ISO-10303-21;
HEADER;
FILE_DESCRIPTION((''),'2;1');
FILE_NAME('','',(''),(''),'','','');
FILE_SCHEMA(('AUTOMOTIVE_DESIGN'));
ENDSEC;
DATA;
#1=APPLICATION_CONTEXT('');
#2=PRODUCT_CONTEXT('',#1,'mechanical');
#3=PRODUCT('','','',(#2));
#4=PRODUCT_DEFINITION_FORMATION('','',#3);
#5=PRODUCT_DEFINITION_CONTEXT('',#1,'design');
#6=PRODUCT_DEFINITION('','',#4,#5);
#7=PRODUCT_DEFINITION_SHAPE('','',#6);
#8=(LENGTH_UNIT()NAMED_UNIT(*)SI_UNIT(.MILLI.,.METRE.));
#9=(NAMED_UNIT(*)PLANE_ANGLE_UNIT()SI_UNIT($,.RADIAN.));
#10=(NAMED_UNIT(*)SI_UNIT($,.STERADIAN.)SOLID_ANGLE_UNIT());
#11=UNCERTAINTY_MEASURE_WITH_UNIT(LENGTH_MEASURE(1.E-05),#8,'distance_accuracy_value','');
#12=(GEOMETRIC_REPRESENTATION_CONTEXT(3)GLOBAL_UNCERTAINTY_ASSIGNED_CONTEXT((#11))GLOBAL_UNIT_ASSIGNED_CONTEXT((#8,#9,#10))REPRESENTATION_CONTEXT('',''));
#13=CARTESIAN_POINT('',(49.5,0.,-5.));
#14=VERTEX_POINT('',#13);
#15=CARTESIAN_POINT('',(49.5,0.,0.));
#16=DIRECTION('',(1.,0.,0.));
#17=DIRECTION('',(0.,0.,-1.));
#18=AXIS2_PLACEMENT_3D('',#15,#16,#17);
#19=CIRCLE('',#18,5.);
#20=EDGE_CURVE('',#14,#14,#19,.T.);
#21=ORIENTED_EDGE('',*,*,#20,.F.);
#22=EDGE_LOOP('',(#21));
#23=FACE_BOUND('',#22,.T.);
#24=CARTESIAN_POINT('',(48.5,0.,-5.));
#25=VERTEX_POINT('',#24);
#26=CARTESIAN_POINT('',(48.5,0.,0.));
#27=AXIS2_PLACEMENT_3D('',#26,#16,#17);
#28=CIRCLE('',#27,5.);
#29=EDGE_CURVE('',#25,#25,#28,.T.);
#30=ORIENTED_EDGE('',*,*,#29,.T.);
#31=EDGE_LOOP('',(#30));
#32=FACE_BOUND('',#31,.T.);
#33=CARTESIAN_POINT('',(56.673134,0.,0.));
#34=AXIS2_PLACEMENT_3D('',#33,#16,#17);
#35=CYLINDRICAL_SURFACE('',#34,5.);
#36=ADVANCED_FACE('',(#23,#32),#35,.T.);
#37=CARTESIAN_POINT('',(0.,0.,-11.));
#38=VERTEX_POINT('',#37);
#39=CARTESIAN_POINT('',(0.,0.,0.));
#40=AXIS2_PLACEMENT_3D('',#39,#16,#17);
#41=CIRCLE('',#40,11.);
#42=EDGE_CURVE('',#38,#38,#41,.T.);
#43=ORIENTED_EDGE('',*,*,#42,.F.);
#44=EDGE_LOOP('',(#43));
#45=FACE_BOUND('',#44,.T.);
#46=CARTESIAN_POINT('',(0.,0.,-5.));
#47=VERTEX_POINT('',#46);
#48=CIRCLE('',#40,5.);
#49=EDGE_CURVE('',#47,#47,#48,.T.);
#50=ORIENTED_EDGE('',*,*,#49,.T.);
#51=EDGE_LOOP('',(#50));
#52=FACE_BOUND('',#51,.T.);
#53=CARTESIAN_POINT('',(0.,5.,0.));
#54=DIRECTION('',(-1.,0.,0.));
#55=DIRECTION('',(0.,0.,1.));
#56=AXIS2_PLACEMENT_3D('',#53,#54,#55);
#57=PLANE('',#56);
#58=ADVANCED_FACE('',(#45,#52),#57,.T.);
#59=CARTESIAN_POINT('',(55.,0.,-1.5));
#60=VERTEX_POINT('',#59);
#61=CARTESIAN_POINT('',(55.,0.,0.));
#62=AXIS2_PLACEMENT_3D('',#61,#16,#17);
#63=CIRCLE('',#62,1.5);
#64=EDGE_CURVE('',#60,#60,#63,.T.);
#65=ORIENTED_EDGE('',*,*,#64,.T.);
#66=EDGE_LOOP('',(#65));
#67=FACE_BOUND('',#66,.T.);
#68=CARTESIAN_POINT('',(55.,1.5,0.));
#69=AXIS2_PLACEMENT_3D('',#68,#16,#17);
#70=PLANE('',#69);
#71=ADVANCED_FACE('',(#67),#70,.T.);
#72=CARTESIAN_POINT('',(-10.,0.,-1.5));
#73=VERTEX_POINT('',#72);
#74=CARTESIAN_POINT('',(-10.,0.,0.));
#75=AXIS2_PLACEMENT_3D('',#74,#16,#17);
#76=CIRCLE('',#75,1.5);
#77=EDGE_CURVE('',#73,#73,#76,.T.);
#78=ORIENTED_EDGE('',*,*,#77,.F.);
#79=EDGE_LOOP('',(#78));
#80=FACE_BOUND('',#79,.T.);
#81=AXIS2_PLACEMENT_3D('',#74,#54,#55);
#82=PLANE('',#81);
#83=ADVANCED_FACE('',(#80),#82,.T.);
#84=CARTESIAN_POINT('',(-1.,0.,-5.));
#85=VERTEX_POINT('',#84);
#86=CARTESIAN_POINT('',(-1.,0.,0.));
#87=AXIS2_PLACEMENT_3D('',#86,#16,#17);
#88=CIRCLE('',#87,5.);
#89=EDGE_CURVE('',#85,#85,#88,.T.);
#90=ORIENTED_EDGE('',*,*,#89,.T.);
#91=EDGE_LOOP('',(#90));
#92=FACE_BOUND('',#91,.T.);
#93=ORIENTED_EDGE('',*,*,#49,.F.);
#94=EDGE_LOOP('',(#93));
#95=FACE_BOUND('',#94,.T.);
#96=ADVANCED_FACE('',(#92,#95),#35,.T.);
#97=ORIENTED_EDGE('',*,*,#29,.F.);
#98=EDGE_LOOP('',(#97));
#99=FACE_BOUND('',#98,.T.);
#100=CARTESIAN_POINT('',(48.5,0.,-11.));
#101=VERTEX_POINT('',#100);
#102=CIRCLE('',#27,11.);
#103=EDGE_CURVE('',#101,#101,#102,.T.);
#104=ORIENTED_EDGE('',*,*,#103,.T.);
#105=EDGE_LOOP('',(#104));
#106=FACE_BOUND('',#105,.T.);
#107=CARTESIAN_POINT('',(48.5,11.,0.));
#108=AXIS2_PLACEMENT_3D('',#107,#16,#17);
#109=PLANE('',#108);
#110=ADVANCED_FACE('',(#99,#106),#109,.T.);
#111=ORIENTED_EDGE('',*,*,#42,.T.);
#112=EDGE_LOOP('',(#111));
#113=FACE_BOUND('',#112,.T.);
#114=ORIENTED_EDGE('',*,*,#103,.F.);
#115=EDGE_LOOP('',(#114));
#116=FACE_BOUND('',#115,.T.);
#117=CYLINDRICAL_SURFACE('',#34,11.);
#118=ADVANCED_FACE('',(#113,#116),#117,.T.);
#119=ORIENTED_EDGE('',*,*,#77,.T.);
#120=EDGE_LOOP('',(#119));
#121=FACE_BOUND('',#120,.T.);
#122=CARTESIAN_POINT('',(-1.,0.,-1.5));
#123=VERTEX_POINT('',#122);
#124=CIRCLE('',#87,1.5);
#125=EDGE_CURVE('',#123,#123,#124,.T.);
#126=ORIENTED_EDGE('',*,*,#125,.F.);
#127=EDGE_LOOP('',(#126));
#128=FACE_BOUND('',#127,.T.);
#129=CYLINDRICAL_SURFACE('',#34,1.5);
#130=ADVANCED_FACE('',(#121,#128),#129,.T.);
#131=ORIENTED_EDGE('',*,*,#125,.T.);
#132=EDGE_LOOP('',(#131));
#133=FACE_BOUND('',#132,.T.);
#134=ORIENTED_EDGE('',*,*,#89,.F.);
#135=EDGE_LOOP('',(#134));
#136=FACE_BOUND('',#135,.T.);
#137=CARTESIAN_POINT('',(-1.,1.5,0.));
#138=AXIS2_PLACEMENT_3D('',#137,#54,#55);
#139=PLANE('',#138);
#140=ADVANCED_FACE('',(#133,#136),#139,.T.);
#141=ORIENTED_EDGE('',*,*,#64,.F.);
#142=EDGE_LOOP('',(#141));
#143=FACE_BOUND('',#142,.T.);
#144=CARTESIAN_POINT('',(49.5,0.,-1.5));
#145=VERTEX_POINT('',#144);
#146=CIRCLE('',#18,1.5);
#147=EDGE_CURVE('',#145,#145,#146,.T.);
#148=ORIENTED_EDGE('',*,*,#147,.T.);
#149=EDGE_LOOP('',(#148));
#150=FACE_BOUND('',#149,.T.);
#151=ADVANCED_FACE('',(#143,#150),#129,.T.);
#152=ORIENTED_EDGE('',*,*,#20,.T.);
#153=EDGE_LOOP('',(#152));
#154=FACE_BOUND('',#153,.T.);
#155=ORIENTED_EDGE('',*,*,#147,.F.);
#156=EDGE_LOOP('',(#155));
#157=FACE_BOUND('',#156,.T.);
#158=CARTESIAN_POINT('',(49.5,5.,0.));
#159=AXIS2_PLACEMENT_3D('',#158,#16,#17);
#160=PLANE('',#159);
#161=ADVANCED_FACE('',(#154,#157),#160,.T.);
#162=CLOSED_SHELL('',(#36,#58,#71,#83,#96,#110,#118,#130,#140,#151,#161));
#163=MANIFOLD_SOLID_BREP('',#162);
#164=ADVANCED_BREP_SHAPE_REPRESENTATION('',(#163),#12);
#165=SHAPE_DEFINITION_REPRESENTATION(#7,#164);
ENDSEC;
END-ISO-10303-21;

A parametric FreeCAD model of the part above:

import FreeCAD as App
import Part
import Sketcher
Q = App.Units.Quantity

doc = App.newDocument("Part")
body = doc.addObject("PartDesign::Body", "Body")

sketch1 = body.newObject("Sketcher::SketchObject", "Sketch")
sketch1.AttachmentSupport = (doc.getObject("XY_Plane"), [""])
sketch1.MapMode = "FlatFace"
sketch1.addGeometry([
    Part.LineSegment(App.Vector(-10, 1.5, 0), App.Vector(-10, 0, 0)),
    Part.LineSegment(App.Vector(-10, 0, 0), App.Vector(55, 0, 0)),
    Part.LineSegment(App.Vector(55, 0, 0), App.Vector(55, 1.5, 0)),
    Part.LineSegment(App.Vector(55, 1.5, 0), App.Vector(49.5, 1.5, 0)),
    Part.LineSegment(App.Vector(49.5, 1.5, 0), App.Vector(49.5, 5, 0)),
    Part.LineSegment(App.Vector(49.5, 5, 0), App.Vector(48.5, 5, 0)),
    Part.LineSegment(App.Vector(48.5, 5, 0), App.Vector(48.5, 11, 0)),
    Part.LineSegment(App.Vector(48.5, 11, 0), App.Vector(0, 11, 0)),
    Part.LineSegment(App.Vector(0, 11, 0), App.Vector(0, 5, 0)),
    Part.LineSegment(App.Vector(0, 5, 0), App.Vector(-1, 5, 0)),
    Part.LineSegment(App.Vector(-1, 5, 0), App.Vector(-1, 1.5, 0)),
    Part.LineSegment(App.Vector(-1, 1.5, 0), App.Vector(-10, 1.5, 0)),
], False)
sketch1.addConstraint([
    Sketcher.Constraint("Coincident", 0, 2, 1, 1),
    Sketcher.Constraint("Coincident", 1, 2, 2, 1),
    Sketcher.Constraint("Coincident", 2, 2, 3, 1),
    Sketcher.Constraint("Coincident", 3, 2, 4, 1),
    Sketcher.Constraint("Coincident", 4, 2, 5, 1),
    Sketcher.Constraint("Coincident", 5, 2, 6, 1),
    Sketcher.Constraint("Coincident", 6, 2, 7, 1),
    Sketcher.Constraint("Coincident", 7, 2, 8, 1),
    Sketcher.Constraint("Coincident", 8, 2, 9, 1),
    Sketcher.Constraint("Coincident", 9, 2, 10, 1),
    Sketcher.Constraint("Coincident", 10, 2, 11, 1),
    Sketcher.Constraint("Coincident", 11, 2, 0, 1),
    Sketcher.Constraint("Vertical", 0),
    Sketcher.Constraint("Horizontal", 1),
    Sketcher.Constraint("Vertical", 2),
    Sketcher.Constraint("Horizontal", 3),
    Sketcher.Constraint("Vertical", 4),
    Sketcher.Constraint("Horizontal", 5),
    Sketcher.Constraint("Vertical", 6),
    Sketcher.Constraint("Horizontal", 7),
    Sketcher.Constraint("Vertical", 8),
    Sketcher.Constraint("Horizontal", 9),
    Sketcher.Constraint("Vertical", 10),
    Sketcher.Constraint("Horizontal", 11),
    Sketcher.Constraint("PointOnObject", 0, 2, -1),
    Sketcher.Constraint("PointOnObject", 7, 2, -2),
    Sketcher.Constraint("Horizontal", 5, 2, 8, 2),
    Sketcher.Constraint("Horizontal", 3, 2, 10, 2),
    Sketcher.Constraint("Equal", 5, 9),
    Sketcher.Constraint("DistanceX", 1, 1, 1, 2, Q("65 mm")),
    Sketcher.Constraint("DistanceX", 5, 2, 5, 1, Q("1 mm")),
    Sketcher.Constraint("DistanceX", 11, 2, 11, 1, Q("9 mm")),
    Sketcher.Constraint("DistanceY", 6, 1, 6, 2, Q("6 mm")),
    Sketcher.Constraint("DistanceX", 3, 2, 3, 1, Q("5.5 mm")),
    Sketcher.Constraint("DistanceY", 0, 2, 0, 1, Q("1.5 mm")),
    Sketcher.Constraint("DistanceY", 4, 1, 4, 2, Q("3.5 mm")),
])
revolution = body.newObject("PartDesign::Revolution", "Revolution")
revolution.Profile = sketch1
revolution.ReferenceAxis = (sketch1, ["H_Axis"])
revolution.Angle = 360

doc.recompute()
